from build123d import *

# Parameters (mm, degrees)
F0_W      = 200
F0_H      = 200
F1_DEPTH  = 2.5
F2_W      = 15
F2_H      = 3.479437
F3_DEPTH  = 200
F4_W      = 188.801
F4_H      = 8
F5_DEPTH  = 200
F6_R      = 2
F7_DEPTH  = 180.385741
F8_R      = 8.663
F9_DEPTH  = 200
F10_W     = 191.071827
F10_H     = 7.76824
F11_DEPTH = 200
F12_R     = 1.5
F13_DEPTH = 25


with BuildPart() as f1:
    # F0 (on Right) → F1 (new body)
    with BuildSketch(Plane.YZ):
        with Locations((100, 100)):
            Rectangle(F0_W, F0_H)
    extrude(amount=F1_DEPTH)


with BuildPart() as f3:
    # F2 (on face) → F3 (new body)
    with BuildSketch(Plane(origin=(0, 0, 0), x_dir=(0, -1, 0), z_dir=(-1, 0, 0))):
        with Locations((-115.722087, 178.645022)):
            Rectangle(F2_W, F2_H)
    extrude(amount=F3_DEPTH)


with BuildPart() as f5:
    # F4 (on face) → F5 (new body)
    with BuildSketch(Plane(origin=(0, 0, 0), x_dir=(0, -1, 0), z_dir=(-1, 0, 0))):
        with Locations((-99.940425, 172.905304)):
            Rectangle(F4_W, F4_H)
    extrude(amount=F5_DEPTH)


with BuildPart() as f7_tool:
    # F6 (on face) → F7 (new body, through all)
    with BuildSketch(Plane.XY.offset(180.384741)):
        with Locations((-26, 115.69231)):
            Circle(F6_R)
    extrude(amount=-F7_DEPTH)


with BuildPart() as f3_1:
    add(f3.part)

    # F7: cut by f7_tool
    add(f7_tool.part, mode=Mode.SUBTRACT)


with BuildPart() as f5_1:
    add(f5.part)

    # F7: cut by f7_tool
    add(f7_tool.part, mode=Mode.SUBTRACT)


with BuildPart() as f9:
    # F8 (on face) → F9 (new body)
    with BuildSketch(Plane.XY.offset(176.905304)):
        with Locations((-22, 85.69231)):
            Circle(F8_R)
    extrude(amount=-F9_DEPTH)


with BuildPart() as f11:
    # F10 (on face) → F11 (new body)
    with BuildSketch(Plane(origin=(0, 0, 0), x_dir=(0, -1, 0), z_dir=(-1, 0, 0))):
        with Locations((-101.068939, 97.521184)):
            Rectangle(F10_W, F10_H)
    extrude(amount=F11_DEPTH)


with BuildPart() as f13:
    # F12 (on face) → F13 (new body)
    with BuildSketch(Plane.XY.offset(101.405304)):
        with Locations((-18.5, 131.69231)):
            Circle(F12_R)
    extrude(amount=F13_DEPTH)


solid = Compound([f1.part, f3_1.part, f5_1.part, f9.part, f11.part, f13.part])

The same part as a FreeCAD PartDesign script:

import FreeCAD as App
import Part
import Sketcher


def add_polygon(sketch, points):
    """Adds a closed chain of lines whose ends are joined by coincident constraints."""
    first, n = sketch.GeometryCount, len(points)
    for a, b in zip(points, points[1:] + points[:1]):
        sketch.addGeometry(Part.LineSegment(App.Vector(*a, 0), App.Vector(*b, 0)), False)
    for i in range(n):
        sketch.addConstraint(Sketcher.Constraint("Coincident", first + i, 2, first + (i + 1) % n, 1))

doc = App.newDocument("Part")
body = doc.addObject("PartDesign::Body", "Body")

sketch1 = body.newObject("Sketcher::SketchObject", "Sketch")
sketch1.AttachmentSupport = (doc.getObject("YZ_Plane"), [""])
sketch1.MapMode = "FlatFace"
add_polygon(sketch1, [(0, 200), (0, 0), (200, 0), (200, 200)])
sketch1.addConstraint(Sketcher.Constraint("Vertical", 0))
sketch1.addConstraint(Sketcher.Constraint("Horizontal", 1))
sketch1.addConstraint(Sketcher.Constraint("Vertical", 2))
sketch1.addConstraint(Sketcher.Constraint("Horizontal", 3))
sketch1.addConstraint(Sketcher.Constraint("Coincident", 0, 2, -1, 1))
sketch1.addConstraint(Sketcher.Constraint("Equal", 3, 0))
sketch1.addConstraint(Sketcher.Constraint("DistanceX", 1, 1, 1, 2, 200.0))
pad1 = body.newObject("PartDesign::Pad", "Pad")
pad1.Profile = sketch1
pad1.Length = 2.5
body2 = doc.addObject("PartDesign::Body", "Body001")

sketch2 = body2.newObject("Sketcher::SketchObject", "Sketch001")
sketch2.AttachmentSupport = (doc.getObject("YZ_Plane001"), [""])
sketch2.MapMode = "FlatFace"
add_polygon(sketch2, [(123.222087, 180.38474), (123.222087, 176.905304), (108.222087, 176.905304), (108.222087, 180.38474)])
sketch2.addConstraint(Sketcher.Constraint("Vertical", 0))
sketch2.addConstraint(Sketcher.Constraint("Horizontal", 1))
sketch2.addConstraint(Sketcher.Constraint("Vertical", 2))
sketch2.addConstraint(Sketcher.Constraint("Horizontal", 3))
sketch2.addConstraint(Sketcher.Constraint("DistanceX", 1, 2, 1, 1, 15.0))
sketch2.addConstraint(Sketcher.Constraint("DistanceY", 0, 2, 0, 1, 3.479437))
sketch2.addConstraint(Sketcher.Constraint("DistanceY", -1, 1, 2, 2, 180.38474))
sketch2.addConstraint(Sketcher.Constraint("DistanceX", -1, 1, 0, 2, 123.222087))
pad2 = body2.newObject("PartDesign::Pad", "Pad001")
pad2.Profile = sketch2
pad2.Length = 200
pad2.Reversed = True
body3 = doc.addObject("PartDesign::Body", "Body002")

sketch3 = body3.newObject("Sketcher::SketchObject", "Sketch002")
sketch3.AttachmentSupport = (doc.getObject("YZ_Plane002"), [""])
sketch3.MapMode = "FlatFace"
add_polygon(sketch3, [(194.340925, 176.905304), (194.340925, 168.905304), (5.539925, 168.905304), (5.539925, 176.905304)])
sketch3.addConstraint(Sketcher.Constraint("Vertical", 0))
sketch3.addConstraint(Sketcher.Constraint("Horizontal", 1))
sketch3.addConstraint(Sketcher.Constraint("Vertical", 2))
sketch3.addConstraint(Sketcher.Constraint("Horizontal", 3))
sketch3.addConstraint(Sketcher.Constraint("DistanceY", 0, 2, 0, 1, 8.0))
sketch3.addConstraint(Sketcher.Constraint("DistanceX", 1, 2, 1, 1, 188.801))
sketch3.addConstraint(Sketcher.Constraint("DistanceX", -1, 1, 0, 2, 194.340925))
sketch3.addConstraint(Sketcher.Constraint("DistanceY", -1, 1, 0, 2, 168.905304))
pad3 = body3.newObject("PartDesign::Pad", "Pad002")
pad3.Profile = sketch3
pad3.Length = 200
pad3.Reversed = True
body4 = doc.addObject("PartDesign::Body", "Body003")

sketch4 = body4.newObject("Sketcher::SketchObject", "Sketch003")
sketch4.AttachmentSupport = (doc.getObject("XY_Plane003"), [""])
sketch4.MapMode = "FlatFace"
sketch4.AttachmentOffset = App.Placement(App.Vector(0, 0, 180.384741), App.Rotation())
sketch4.addGeometry(Part.Circle(App.Vector(-26, 115.69231, 0), App.Vector(0, 0, 1), 2), False)
sketch4.addConstraint(Sketcher.Constraint("Diameter", 0, 4.0))
sketch4.addConstraint(Sketcher.Constraint("DistanceX", 0, 3, -1, 1, 26.0))
sketch4.addConstraint(Sketcher.Constraint("DistanceY", -1, 1, 0, 3, 115.69231))
pad4 = body4.newObject("PartDesign::Pad", "Pad003")
pad4.Profile = sketch4
pad4.Length = 180.385741
pad4.Reversed = True
doc.recompute()

body5 = doc.addObject("PartDesign::Body", "Body004")
body5.BaseFeature = body4
boolean = body2.newObject("PartDesign::Boolean", "Boolean")
boolean.Type = "Cut"
boolean.addObjects([body5])
doc.recompute()

boolean2 = body3.newObject("PartDesign::Boolean", "Boolean001")
boolean2.Type = "Cut"
boolean2.addObjects([body4])
body6 = doc.addObject("PartDesign::Body", "Body005")

sketch5 = body6.newObject("Sketcher::SketchObject", "Sketch004")
sketch5.AttachmentSupport = (doc.getObject("XY_Plane005"), [""])
sketch5.MapMode = "FlatFace"
sketch5.AttachmentOffset = App.Placement(App.Vector(0, 0, 176.905304), App.Rotation())
sketch5.addGeometry(Part.Circle(App.Vector(-22, 85.69231, 0), App.Vector(0, 0, 1), 8.663), False)
sketch5.addConstraint(Sketcher.Constraint("Diameter", 0, 17.326))
sketch5.addConstraint(Sketcher.Constraint("DistanceX", 0, 3, -1, 1, 22.0))
sketch5.addConstraint(Sketcher.Constraint("DistanceY", -1, 1, 0, 3, 85.69231))
pad5 = body6.newObject("PartDesign::Pad", "Pad004")
pad5.Profile = sketch5
pad5.Length = 200
pad5.Reversed = True
body7 = doc.addObject("PartDesign::Body", "Body006")

sketch6 = body7.newObject("Sketcher::SketchObject", "Sketch005")
sketch6.AttachmentSupport = (doc.getObject("YZ_Plane006"), [""])
sketch6.MapMode = "FlatFace"
add_polygon(sketch6, [(196.604852, 101.405304), (196.604852, 93.637064), (5.533025, 93.637064), (5.533025, 101.405304)])
sketch6.addConstraint(Sketcher.Constraint("Vertical", 0))
sketch6.addConstraint(Sketcher.Constraint("Horizontal", 1))
sketch6.addConstraint(Sketcher.Constraint("Vertical", 2))
sketch6.addConstraint(Sketcher.Constraint("Horizontal", 3))
sketch6.addConstraint(Sketcher.Constraint("DistanceY", 0, 2, 0, 1, 7.76824))
sketch6.addConstraint(Sketcher.Constraint("DistanceX", 1, 2, 1, 1, 191.071827))
sketch6.addConstraint(Sketcher.Constraint("DistanceX", -1, 1, 0, 2, 196.604852))
sketch6.addConstraint(Sketcher.Constraint("DistanceY", -1, 1, 0, 2, 93.637064))
pad6 = body7.newObject("PartDesign::Pad", "Pad005")
pad6.Profile = sketch6
pad6.Length = 200
pad6.Reversed = True
body8 = doc.addObject("PartDesign::Body", "Body007")

sketch7 = body8.newObject("Sketcher::SketchObject", "Sketch006")
sketch7.AttachmentSupport = (doc.getObject("XY_Plane007"), [""])
sketch7.MapMode = "FlatFace"
sketch7.AttachmentOffset = App.Placement(App.Vector(0, 0, 101.405304), App.Rotation())
sketch7.addGeometry(Part.Circle(App.Vector(-18.5, 131.69231, 0), App.Vector(0, 0, 1), 1.5), False)
sketch7.addConstraint(Sketcher.Constraint("Diameter", 0, 3.0))
sketch7.addConstraint(Sketcher.Constraint("DistanceX", 0, 3, -1, 1, 18.5))
sketch7.addConstraint(Sketcher.Constraint("DistanceY", -1, 1, 0, 3, 131.69231))
pad7 = body8.newObject("PartDesign::Pad", "Pad006")
pad7.Profile = sketch7
pad7.Length = 25

doc.recompute()
